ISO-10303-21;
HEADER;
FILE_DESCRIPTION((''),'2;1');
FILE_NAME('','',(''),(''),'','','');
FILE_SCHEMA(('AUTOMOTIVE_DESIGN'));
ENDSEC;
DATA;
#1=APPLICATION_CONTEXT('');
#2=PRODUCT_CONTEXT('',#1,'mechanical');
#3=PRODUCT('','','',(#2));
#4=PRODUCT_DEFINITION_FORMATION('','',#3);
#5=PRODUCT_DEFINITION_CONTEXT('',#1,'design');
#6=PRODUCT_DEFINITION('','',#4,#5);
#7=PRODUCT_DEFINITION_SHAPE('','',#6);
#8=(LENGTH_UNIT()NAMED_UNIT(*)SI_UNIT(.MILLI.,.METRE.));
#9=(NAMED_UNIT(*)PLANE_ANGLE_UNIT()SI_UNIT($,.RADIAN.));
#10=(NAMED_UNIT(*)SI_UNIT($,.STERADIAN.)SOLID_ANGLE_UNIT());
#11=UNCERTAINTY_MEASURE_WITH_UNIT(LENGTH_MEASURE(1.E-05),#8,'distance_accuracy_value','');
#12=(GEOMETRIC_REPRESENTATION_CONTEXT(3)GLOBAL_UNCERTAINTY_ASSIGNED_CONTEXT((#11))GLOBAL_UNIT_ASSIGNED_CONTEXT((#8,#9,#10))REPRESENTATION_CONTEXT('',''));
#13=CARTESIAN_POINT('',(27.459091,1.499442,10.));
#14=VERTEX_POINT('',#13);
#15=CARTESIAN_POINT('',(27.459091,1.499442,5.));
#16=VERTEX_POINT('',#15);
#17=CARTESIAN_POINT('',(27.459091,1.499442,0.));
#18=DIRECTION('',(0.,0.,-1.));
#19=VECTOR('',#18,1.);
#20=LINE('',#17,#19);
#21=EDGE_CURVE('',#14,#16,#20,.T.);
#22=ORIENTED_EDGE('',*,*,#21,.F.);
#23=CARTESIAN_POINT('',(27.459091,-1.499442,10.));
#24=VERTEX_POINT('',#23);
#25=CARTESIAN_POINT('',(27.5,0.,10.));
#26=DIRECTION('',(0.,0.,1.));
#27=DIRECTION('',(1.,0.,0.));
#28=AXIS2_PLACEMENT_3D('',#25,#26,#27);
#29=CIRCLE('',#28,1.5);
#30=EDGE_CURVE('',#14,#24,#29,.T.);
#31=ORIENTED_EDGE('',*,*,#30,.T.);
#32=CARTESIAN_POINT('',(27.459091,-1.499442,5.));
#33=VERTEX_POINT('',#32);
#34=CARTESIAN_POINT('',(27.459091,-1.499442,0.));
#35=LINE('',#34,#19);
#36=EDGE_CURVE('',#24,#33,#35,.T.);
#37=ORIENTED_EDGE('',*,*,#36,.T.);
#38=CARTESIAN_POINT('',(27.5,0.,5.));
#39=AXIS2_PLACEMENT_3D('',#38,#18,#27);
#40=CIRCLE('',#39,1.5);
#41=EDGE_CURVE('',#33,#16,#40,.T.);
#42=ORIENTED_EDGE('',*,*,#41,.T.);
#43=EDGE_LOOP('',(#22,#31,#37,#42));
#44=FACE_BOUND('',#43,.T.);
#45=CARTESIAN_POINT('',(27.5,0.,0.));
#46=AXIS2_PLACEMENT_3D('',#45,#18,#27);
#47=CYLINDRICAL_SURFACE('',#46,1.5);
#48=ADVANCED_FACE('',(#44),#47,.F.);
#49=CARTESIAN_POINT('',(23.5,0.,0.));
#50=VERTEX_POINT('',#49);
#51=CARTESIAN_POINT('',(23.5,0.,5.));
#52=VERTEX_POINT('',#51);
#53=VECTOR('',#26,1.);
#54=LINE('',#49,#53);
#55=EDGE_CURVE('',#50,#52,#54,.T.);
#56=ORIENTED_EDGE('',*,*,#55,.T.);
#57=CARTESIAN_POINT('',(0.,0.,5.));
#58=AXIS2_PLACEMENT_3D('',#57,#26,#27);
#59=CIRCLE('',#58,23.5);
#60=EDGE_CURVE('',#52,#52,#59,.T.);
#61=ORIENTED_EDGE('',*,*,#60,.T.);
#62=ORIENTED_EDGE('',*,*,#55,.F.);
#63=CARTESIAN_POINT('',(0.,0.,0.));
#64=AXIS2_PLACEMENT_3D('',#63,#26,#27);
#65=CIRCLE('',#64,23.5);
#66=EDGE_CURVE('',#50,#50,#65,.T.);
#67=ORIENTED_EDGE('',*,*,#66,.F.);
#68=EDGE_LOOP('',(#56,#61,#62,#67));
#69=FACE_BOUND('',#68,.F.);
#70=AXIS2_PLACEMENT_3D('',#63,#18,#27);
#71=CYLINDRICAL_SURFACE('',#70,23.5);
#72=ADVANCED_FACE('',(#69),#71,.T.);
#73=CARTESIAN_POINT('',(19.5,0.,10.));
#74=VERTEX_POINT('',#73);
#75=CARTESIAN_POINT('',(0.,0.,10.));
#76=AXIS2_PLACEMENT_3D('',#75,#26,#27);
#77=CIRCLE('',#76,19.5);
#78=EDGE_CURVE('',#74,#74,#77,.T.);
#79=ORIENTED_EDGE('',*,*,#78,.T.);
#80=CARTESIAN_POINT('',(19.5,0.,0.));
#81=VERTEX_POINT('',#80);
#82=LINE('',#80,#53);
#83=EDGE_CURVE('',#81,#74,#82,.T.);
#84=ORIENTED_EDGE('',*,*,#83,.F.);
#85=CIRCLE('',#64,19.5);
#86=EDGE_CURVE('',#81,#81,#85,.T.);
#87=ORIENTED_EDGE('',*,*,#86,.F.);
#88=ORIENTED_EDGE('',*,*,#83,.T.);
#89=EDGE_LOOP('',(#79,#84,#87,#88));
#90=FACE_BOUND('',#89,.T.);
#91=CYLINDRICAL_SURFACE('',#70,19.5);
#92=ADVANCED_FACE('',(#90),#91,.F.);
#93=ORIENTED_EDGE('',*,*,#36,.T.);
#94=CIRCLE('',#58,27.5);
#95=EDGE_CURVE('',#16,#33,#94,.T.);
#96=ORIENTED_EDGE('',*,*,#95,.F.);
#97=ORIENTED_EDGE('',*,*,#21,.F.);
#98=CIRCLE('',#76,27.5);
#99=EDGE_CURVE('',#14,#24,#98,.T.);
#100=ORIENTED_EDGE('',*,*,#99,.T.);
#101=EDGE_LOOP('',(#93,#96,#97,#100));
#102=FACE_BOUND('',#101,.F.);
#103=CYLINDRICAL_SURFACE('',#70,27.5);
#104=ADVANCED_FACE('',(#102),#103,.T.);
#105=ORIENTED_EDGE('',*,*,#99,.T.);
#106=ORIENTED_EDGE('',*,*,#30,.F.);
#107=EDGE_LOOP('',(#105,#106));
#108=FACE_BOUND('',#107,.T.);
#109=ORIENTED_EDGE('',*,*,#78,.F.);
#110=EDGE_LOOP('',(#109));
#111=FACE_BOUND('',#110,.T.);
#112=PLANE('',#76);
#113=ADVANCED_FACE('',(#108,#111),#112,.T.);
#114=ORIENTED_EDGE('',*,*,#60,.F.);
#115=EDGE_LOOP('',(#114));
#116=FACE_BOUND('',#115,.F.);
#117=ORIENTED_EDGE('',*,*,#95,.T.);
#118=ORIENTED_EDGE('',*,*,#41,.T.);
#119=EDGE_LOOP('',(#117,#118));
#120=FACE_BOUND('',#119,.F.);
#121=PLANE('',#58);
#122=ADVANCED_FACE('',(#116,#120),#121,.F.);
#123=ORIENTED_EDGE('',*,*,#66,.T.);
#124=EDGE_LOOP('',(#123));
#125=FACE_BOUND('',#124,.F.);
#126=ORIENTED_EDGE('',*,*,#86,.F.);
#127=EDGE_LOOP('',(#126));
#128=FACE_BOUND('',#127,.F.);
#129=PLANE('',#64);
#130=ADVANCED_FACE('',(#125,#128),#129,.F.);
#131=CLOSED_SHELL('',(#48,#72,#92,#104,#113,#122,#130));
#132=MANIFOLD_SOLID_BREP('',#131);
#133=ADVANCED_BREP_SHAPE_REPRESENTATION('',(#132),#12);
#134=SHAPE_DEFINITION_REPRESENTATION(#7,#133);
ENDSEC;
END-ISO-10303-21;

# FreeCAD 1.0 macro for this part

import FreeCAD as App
import Part
import Sketcher

V = App.Vector

doc = App.newDocument("Part")
body = doc.addObject("PartDesign::Body", "Body")

# Sketch on XY plane
sketch1 = body.newObject("Sketcher::SketchObject", "Sketch")
sketch1.AttachmentSupport = (doc.getObject("XY_Plane"), [""])
sketch1.MapMode = "FlatFace"
sketch1.addGeometry(Part.Circle(V(0, 0, 0), V(0, 0, 1), 28), False)
sketch1.addGeometry(Part.Circle(V(0, 0, 0), V(0, 0, 1), 20), False)
sketch1.addConstraint(Sketcher.Constraint("Coincident", 0, 3, -1, 1))
sketch1.addConstraint(Sketcher.Constraint("Coincident", 1, 3, -1, 1))
sketch1.addConstraint(Sketcher.Constraint("Diameter", 0, 55.0))
sketch1.addConstraint(Sketcher.Constraint("Diameter", 1, 39.0))
pad1 = body.newObject("PartDesign::Pad", "Pad")
pad1.Profile = sketch1
pad1.Length = 10

# Sketch on XY plane
sketch2 = body.newObject("Sketcher::SketchObject", "Sketch001")
sketch2.AttachmentSupport = (doc.getObject("XY_Plane"), [""])
sketch2.MapMode = "FlatFace"
sketch2.addGeometry(Part.Circle(V(27.5, 0, 0), V(0, 0, 1), 1.5), False)
sketch2.addConstraint(Sketcher.Constraint("PointOnObject", 0, 3, -1))
sketch2.addConstraint(Sketcher.Constraint("Diameter", 0, 3.0))
sketch2.addConstraint(Sketcher.Constraint("DistanceX", -1, 1, 0, 3, 27.5))
pocket1 = body.newObject("PartDesign::Pocket", "Pocket")
pocket1.Profile = sketch2
pocket1.Length = 10
pocket1.Reversed = True

# Sketch on YZ plane
sketch3 = body.newObject("Sketcher::SketchObject", "Sketch002")
sketch3.AttachmentSupport = (doc.getObject("YZ_Plane"), [""])
sketch3.MapMode = "FlatFace"
sketch3.AttachmentOffset = App.Placement(V(0, 0, 27.5), App.Rotation())
sketch3.addGeometry(Part.Circle(V(0, 0, 0), V(0, 0, 1), 1.5), False)
sketch3.addConstraint(Sketcher.Constraint("Coincident", 0, 3, -1, 1))
sketch3.addConstraint(Sketcher.Constraint("Diameter", 0, 3.0))
pocket2 = body.newObject("PartDesign::Pocket", "Pocket001")
pocket2.Profile = sketch3
pocket2.Length = 1.5

# Sketch on XY plane
sketch4 = body.newObject("Sketcher::SketchObject", "Sketch003")
sketch4.AttachmentSupport = (doc.getObject("XY_Plane"), [""])
sketch4.MapMode = "FlatFace"
sketch4.addGeometry(Part.Circle(V(0, 0, 0), V(0, 0, 1), 28), False)
sketch4.addGeometry(Part.Circle(V(0, 0, 0), V(0, 0, 1), 24), False)
sketch4.addConstraint(Sketcher.Constraint("Coincident", 0, 3, -1, 1))
sketch4.addConstraint(Sketcher.Constraint("Coincident", 1, 3, -1, 1))
sketch4.addConstraint(Sketcher.Constraint("Diameter", 0, 55.0))
sketch4.addConstraint(Sketcher.Constraint("Diameter", 1, 47.0))
pocket3 = body.newObject("PartDesign::Pocket", "Pocket002")
pocket3.Profile = sketch4
pocket3.Length = 5
pocket3.Reversed = True

doc.recompute()
